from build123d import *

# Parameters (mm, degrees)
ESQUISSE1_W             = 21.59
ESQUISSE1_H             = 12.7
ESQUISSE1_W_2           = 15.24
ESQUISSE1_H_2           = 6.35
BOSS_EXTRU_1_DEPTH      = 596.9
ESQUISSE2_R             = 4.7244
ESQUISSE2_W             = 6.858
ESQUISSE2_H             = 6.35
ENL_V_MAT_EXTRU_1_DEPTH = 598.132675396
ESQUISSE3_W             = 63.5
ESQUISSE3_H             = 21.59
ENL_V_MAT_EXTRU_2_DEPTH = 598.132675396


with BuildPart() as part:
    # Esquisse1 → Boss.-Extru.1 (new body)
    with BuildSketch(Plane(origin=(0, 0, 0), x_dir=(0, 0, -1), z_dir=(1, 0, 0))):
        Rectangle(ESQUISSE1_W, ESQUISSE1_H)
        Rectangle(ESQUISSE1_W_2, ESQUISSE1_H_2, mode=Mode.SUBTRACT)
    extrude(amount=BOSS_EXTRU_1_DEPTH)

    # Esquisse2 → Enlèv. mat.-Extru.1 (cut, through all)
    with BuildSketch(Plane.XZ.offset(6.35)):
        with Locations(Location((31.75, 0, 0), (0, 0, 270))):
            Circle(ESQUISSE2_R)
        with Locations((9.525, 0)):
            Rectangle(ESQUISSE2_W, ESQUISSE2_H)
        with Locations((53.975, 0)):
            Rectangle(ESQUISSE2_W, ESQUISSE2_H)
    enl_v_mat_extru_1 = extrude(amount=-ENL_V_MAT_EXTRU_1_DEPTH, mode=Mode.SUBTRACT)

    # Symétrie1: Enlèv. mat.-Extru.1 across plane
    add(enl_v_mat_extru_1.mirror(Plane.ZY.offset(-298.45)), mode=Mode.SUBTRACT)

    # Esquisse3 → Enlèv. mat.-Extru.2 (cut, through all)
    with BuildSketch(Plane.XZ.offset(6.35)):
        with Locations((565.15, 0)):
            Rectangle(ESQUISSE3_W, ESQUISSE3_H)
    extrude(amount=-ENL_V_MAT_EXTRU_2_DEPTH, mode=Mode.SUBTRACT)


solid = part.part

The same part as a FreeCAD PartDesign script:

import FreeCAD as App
import Part
import Sketcher
from FreeCAD import Vector
Q = App.Units.Quantity


def add_polygon(sketch, points):
    """Adds a closed chain of lines whose ends are joined by coincident constraints."""
    first, n = sketch.GeometryCount, len(points)
    for a, b in zip(points, points[1:] + points[:1]):
        sketch.addGeometry(Part.LineSegment(App.Vector(*a, 0), App.Vector(*b, 0)), False)
    for i in range(n):
        sketch.addConstraint(Sketcher.Constraint("Coincident", first + i, 2, first + (i + 1) % n, 1))

doc = App.newDocument("Part")
body = doc.addObject("PartDesign::Body", "Body")

# Sketch on YZ plane
sketch1 = body.newObject("Sketcher::SketchObject", "Sketch")
sketch1.AttachmentSupport = (doc.getObject("YZ_Plane"), [""])
sketch1.MapMode = "FlatFace"
add_polygon(sketch1, [(6, 11), (-6, 11), (-6, -11), (6, -11)])  # lines 0-3
add_polygon(sketch1, [(-3, -8), (-3, 8), (3, 8), (3, -8)])  # lines 4-7
sketch1.addConstraint([
    Sketcher.Constraint("Horizontal", 0),
    Sketcher.Constraint("Vertical", 1),
    Sketcher.Constraint("Horizontal", 2),
    Sketcher.Constraint("Vertical", 3),
    Sketcher.Constraint("Vertical", 4),
    Sketcher.Constraint("Horizontal", 5),
    Sketcher.Constraint("Vertical", 6),
    Sketcher.Constraint("Horizontal", 7),
    Sketcher.Constraint("Symmetric", 0, 2, 2, 2, -1, 1),
    Sketcher.Constraint("Symmetric", 4, 2, 6, 2, -1, 1),
    Sketcher.Constraint("DistanceX", 0, 2, 0, 1, Q("0.5 in")),
    Sketcher.Constraint("DistanceY", 4, 1, 4, 2, Q("0.6 in")),
    Sketcher.Constraint("DistanceX", 5, 1, 5, 2, Q("0.25 in")),
    Sketcher.Constraint("DistanceY", 1, 2, 1, 1, Q("0.85 in")),
])
pad1 = body.newObject("PartDesign::Pad", "Pad")
pad1.Profile = sketch1
pad1.Length = Q("23.5 in")

# Sketch on XZ plane
sketch2 = body.newObject("Sketcher::SketchObject", "Sketch001")
sketch2.AttachmentSupport = (doc.getObject("XZ_Plane"), [""])
sketch2.MapMode = "FlatFace"
sketch2.AttachmentOffset = App.Placement(Vector(0, 0, 0.25 * 25.4), App.Rotation())
sketch2.addGeometry(Part.Circle(Vector(31.8, 0, 0), Vector(0, 0, 1), 4.7), False)  # 0
add_polygon(sketch2, [(6.1, 3.2), (6.1, -3.2), (13, -3.2), (13, 3.2)])  # lines 1-4
add_polygon(sketch2, [(50.5, 3.2), (50.5, -3.2), (57.4, -3.2), (57.4, 3.2)])  # lines 5-8
sketch2.addConstraint([
    Sketcher.Constraint("Vertical", 1),
    Sketcher.Constraint("Horizontal", 2),
    Sketcher.Constraint("Vertical", 3),
    Sketcher.Constraint("Horizontal", 4),
    Sketcher.Constraint("Vertical", 5),
    Sketcher.Constraint("Horizontal", 6),
    Sketcher.Constraint("Vertical", 7),
    Sketcher.Constraint("Horizontal", 8),
    Sketcher.Constraint("PointOnObject", 0, 3, -1),
    Sketcher.Constraint("Horizontal", 2, 2, 5, 2),
    Sketcher.Constraint("Horizontal", 4, 2, 7, 2),
    Sketcher.Constraint("Equal", 4, 6),
    Sketcher.Constraint("Diameter", 0, Q("0.372 in")),
    Sketcher.Constraint("DistanceX", 2, 1, 2, 2, Q("0.27 in")),
    Sketcher.Constraint("DistanceY", 1, 2, 1, 1, Q("0.25 in")),
    Sketcher.Constraint("DistanceX", -1, 1, 0, 3, Q("1.25 in")),
    Sketcher.Constraint("DistanceX", -1, 1, 1, 2, Q("0.24 in")),
    Sketcher.Constraint("DistanceX", -1, 1, 5, 2, Q("1.99 in")),
    Sketcher.Constraint("DistanceY", 1, 2, -1, 1, Q("0.125 in")),
])
pocket1 = body.newObject("PartDesign::Pocket", "Pocket")
pocket1.Profile = sketch2
pocket1.Type = "ThroughAll"
doc.recompute()

datumplane = body.newObject("PartDesign::Plane", "DatumPlane")
datumplane.AttachmentSupport = (doc.getObject("YZ_Plane"), [""])
datumplane.MapMode = "FlatFace"
datumplane.AttachmentOffset = App.Placement(Vector(0, 0, 11.75 * 25.4), App.Rotation())
mirrored = body.newObject("PartDesign::Mirrored", "Mirrored")
mirrored.Originals = [pocket1]
mirrored.MirrorPlane = (datumplane, [""])
body.Tip = mirrored

# Sketch on XZ plane
sketch3 = body.newObject("Sketcher::SketchObject", "Sketch002")
sketch3.AttachmentSupport = (doc.getObject("XZ_Plane"), [""])
sketch3.MapMode = "FlatFace"
sketch3.AttachmentOffset = App.Placement(Vector(0, 0, 0.25 * 25.4), App.Rotation())
add_polygon(sketch3, [(533, 11), (533, -11), (597, -11), (597, 11)])  # lines 0-3
sketch3.addConstraint([
    Sketcher.Constraint("Vertical", 0),
    Sketcher.Constraint("Horizontal", 1),
    Sketcher.Constraint("Vertical", 2),
    Sketcher.Constraint("Horizontal", 3),
    Sketcher.Constraint("DistanceX", 1, 1, 1, 2, Q("2.5 in")),
    Sketcher.Constraint("DistanceX", -1, 1, 0, 2, Q("21 in")),
    Sketcher.Constraint("DistanceY", 0, 2, 0, 1, Q("0.85 in")),
    Sketcher.Constraint("DistanceY", 0, 2, -1, 1, Q("0.425 in")),
])
pocket2 = body.newObject("PartDesign::Pocket", "Pocket001")
pocket2.Profile = sketch3
pocket2.Type = "ThroughAll"

doc.recompute()
